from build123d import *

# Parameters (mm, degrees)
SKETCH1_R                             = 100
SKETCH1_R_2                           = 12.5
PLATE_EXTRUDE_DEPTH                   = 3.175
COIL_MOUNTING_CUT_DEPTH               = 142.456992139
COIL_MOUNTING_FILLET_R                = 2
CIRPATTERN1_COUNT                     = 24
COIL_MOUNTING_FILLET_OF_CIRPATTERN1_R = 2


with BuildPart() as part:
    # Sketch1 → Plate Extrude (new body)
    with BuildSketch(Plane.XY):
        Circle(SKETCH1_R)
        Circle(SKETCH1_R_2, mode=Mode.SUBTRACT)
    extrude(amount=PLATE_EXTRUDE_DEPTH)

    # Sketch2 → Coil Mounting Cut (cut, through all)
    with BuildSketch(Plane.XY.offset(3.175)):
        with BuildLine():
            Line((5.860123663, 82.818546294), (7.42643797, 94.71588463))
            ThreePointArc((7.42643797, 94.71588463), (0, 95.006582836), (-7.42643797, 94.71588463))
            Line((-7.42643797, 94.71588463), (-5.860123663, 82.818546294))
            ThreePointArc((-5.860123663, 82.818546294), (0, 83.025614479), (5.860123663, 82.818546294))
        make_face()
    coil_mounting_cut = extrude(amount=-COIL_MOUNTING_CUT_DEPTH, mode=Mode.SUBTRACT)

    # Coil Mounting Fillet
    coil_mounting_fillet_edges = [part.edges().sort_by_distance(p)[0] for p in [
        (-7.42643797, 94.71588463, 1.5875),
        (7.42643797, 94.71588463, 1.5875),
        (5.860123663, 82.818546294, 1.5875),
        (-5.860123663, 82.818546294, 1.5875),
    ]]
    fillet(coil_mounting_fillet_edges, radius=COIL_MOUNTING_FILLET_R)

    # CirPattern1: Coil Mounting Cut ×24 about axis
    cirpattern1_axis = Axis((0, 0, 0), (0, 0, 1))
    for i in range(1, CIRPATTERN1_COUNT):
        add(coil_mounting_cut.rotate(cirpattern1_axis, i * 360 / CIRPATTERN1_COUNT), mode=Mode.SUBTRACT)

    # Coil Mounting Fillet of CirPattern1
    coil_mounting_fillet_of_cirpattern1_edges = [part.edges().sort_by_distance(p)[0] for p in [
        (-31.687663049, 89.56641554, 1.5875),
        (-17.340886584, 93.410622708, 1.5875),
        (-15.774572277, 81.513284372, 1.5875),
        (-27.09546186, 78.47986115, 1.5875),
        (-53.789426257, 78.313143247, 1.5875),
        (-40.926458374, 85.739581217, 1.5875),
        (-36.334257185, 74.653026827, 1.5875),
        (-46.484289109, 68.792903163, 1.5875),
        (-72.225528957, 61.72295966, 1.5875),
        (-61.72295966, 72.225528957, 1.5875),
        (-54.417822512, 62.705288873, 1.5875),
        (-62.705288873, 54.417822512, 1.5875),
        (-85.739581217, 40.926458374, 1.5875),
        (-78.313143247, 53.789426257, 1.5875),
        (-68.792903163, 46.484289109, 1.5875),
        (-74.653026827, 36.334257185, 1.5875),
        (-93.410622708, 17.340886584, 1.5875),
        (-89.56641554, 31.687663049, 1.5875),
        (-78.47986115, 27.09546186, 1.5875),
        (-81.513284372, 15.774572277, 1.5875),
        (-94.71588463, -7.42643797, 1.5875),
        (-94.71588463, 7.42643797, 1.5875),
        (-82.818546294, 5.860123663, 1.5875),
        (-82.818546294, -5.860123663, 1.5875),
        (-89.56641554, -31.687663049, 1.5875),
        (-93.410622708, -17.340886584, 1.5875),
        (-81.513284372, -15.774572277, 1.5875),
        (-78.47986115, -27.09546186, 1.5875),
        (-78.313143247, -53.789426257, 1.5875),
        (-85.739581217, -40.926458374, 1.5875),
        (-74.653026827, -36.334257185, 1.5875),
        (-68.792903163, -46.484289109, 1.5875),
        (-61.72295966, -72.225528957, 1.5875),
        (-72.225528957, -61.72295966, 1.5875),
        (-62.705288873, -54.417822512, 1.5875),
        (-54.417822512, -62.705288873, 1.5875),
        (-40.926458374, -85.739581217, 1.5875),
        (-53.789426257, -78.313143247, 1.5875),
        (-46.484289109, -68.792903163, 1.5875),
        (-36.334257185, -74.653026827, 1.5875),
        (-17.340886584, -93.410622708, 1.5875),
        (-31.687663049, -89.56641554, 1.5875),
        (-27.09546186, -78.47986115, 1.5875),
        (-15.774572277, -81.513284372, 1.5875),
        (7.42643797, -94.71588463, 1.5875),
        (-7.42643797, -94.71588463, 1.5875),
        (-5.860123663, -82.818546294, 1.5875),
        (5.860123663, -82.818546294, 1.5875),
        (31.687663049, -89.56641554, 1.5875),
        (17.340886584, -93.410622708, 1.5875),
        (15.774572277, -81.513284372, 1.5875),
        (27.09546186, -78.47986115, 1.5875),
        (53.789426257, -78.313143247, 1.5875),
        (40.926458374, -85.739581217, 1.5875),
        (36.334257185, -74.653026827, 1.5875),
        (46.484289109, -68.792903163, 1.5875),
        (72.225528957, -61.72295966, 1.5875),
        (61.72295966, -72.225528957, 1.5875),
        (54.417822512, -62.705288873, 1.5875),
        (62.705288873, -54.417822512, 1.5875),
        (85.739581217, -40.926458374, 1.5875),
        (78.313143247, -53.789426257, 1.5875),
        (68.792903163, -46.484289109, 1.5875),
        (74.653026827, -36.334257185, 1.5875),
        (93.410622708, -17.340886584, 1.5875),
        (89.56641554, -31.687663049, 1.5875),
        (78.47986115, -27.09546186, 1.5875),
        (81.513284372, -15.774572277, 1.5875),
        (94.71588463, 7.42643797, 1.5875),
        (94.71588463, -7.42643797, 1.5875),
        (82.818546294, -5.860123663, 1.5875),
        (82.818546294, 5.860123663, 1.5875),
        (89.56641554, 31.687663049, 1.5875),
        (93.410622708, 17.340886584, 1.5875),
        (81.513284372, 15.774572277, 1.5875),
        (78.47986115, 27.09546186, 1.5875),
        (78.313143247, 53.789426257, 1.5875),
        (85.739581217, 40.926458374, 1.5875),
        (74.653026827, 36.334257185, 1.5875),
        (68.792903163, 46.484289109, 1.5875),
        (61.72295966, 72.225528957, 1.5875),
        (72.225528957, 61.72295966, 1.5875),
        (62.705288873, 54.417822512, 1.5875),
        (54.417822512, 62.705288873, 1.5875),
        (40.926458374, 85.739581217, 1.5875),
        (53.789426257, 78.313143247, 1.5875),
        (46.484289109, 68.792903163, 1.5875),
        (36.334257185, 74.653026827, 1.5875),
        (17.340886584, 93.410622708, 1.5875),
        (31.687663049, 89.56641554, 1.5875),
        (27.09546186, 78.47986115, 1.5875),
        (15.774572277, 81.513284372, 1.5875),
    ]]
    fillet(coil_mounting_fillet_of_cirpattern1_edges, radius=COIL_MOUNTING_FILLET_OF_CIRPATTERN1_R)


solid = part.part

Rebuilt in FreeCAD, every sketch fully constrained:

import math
import FreeCAD as App
import Part
import Sketcher

V = App.Vector
Q = App.Units.Quantity


def edges_at(feature, points):
    """Names of the edges that pass closest to the given points."""
    edges = feature.Shape.Edges
    near = lambda p: min(range(len(edges)), key=lambda i: edges[i].distToShape(Part.Vertex(*p))[0])
    return sorted({f"Edge{near(p) + 1}" for p in points})

doc = App.newDocument("Part")
body = doc.addObject("PartDesign::Body", "Body")

# Sketch on XY plane
sketch1 = body.newObject("Sketcher::SketchObject", "Sketch")
sketch1.AttachmentSupport = (doc.getObject("XY_Plane"), [""])
sketch1.MapMode = "FlatFace"
sketch1.addGeometry(Part.Circle(V(0, 0, 0), V(0, 0, 1), 100), False)
sketch1.addGeometry(Part.Circle(V(0, 0, 0), V(0, 0, 1), 12.5), False)
sketch1.addConstraint(Sketcher.Constraint("Coincident", 0, 3, -1, 1))
sketch1.addConstraint(Sketcher.Constraint("Coincident", 1, 3, -1, 1))
sketch1.addConstraint(Sketcher.Constraint("Diameter", 0, Q("200 mm")))
sketch1.addConstraint(Sketcher.Constraint("Diameter", 1, Q("25 mm")))
pad1 = body.newObject("PartDesign::Pad", "Pad")
pad1.Profile = sketch1
pad1.Length = 3.175

# Sketch on XY plane
sketch2 = body.newObject("Sketcher::SketchObject", "Sketch001")
sketch2.AttachmentSupport = (doc.getObject("XY_Plane"), [""])
sketch2.MapMode = "FlatFace"
sketch2.AttachmentOffset = App.Placement(V(0, 0, 3.175), App.Rotation())
sketch2.addGeometry(Part.LineSegment(V(5.860124, 82.818546, 0), V(7.426438, 94.715885, 0)), False)
sketch2.addGeometry(Part.ArcOfCircle(Part.Circle(V(0, 0, 0), V(0, 0, 1), 95.006583), math.radians(85.516752), math.radians(94.483248)), False)
sketch2.addGeometry(Part.LineSegment(V(-7.426438, 94.715885, 0), V(-5.860124, 82.818546, 0)), False)
sketch2.addGeometry(Part.ArcOfCircle(Part.Circle(V(0, 0, 0), V(0, 0, 1), 83.025614), math.radians(85.952577), math.radians(94.047423)), False)
sketch2.addConstraint(Sketcher.Constraint("Coincident", 0, 2, 1, 1))
sketch2.addConstraint(Sketcher.Constraint("Coincident", 1, 2, 2, 1))
sketch2.addConstraint(Sketcher.Constraint("Coincident", 2, 2, 3, 2))
sketch2.addConstraint(Sketcher.Constraint("Coincident", 3, 1, 0, 1))
sketch2.addConstraint(Sketcher.Constraint("Coincident", 1, 3, -1, 1))
sketch2.addConstraint(Sketcher.Constraint("Coincident", 3, 3, -1, 1))
sketch2.addConstraint(Sketcher.Constraint("Distance", 0, Q("12 mm")))
sketch2.addConstraint(Sketcher.Constraint("Distance", 2, Q("12 mm")))
sketch2.addConstraint(Sketcher.Constraint("Radius", 1, Q("95.006583 mm")))
sketch2.addConstraint(Sketcher.Constraint("Radius", 3, Q("83.025614 mm")))
sketch2.addConstraint(Sketcher.Constraint("DistanceX", 2, 2, 0, 2, Q("13.286562 mm")))
sketch2.addConstraint(Sketcher.Constraint("DistanceY", 2, 2, 0, 2, Q("11.897338 mm")))
pocket1 = body.newObject("PartDesign::Pocket", "Pocket")
pocket1.Profile = sketch2
pocket1.Type = "ThroughAll"
doc.recompute()

fillet = body.newObject("PartDesign::Fillet", "Fillet")
fillet.Base = (pocket1, edges_at(pocket1, [
    (-7.426, 94.716, 1.587),
    (7.426, 94.716, 1.587),
    (5.86, 82.819, 1.587),
    (-5.86, 82.819, 1.587),
]))
fillet.Radius = 2
doc.recompute()

polarpattern = body.newObject("PartDesign::PolarPattern", "PolarPattern")
polarpattern.Originals = [pocket1]
polarpattern.Axis = (doc.getObject("Z_Axis"), [""])
polarpattern.Angle = 360
polarpattern.Occurrences = 24
body.Tip = polarpattern
doc.recompute()

fillet2 = body.newObject("PartDesign::Fillet", "Fillet001")
fillet2.Base = (polarpattern, edges_at(polarpattern, [
    (-31.688, 89.566, 1.587),
    (-17.341, 93.411, 1.587),
    (-15.775, 81.513, 1.587),
    (-27.095, 78.48, 1.587),
    (-53.789, 78.313, 1.587),
    (-40.926, 85.74, 1.587),
    (-36.334, 74.653, 1.587),
    (-46.484, 68.793, 1.587),
    (-72.226, 61.723, 1.587),
    (-61.723, 72.226, 1.587),
    (-54.418, 62.705, 1.587),
    (-62.705, 54.418, 1.587),
    (-85.74, 40.926, 1.587),
    (-78.313, 53.789, 1.587),
    (-68.793, 46.484, 1.587),
    (-74.653, 36.334, 1.587),
    (-93.411, 17.341, 1.587),
    (-89.566, 31.688, 1.587),
    (-78.48, 27.095, 1.587),
    (-81.513, 15.775, 1.587),
    (-94.716, -7.426, 1.587),
    (-94.716, 7.426, 1.587),
    (-82.819, 5.86, 1.587),
    (-82.819, -5.86, 1.587),
    (-89.566, -31.688, 1.587),
    (-93.411, -17.341, 1.587),
    (-81.513, -15.775, 1.587),
    (-78.48, -27.095, 1.587),
    (-78.313, -53.789, 1.587),
    (-85.74, -40.926, 1.587),
    (-74.653, -36.334, 1.587),
    (-68.793, -46.484, 1.587),
    (-61.723, -72.226, 1.587),
    (-72.226, -61.723, 1.587),
    (-62.705, -54.418, 1.587),
    (-54.418, -62.705, 1.587),
    (-40.926, -85.74, 1.587),
    (-53.789, -78.313, 1.587),
    (-46.484, -68.793, 1.587),
    (-36.334, -74.653, 1.587),
    (-17.341, -93.411, 1.587),
    (-31.688, -89.566, 1.587),
    (-27.095, -78.48, 1.587),
    (-15.775, -81.513, 1.587),
    (7.426, -94.716, 1.587),
    (-7.426, -94.716, 1.587),
    (-5.86, -82.819, 1.587),
    (5.86, -82.819, 1.587),
    (31.688, -89.566, 1.587),
    (17.341, -93.411, 1.587),
    (15.775, -81.513, 1.587),
    (27.095, -78.48, 1.587),
    (53.789, -78.313, 1.587),
    (40.926, -85.74, 1.587),
    (36.334, -74.653, 1.587),
    (46.484, -68.793, 1.587),
    (72.226, -61.723, 1.587),
    (61.723, -72.226, 1.587),
    (54.418, -62.705, 1.587),
    (62.705, -54.418, 1.587),
    (85.74, -40.926, 1.587),
    (78.313, -53.789, 1.587),
    (68.793, -46.484, 1.587),
    (74.653, -36.334, 1.587),
    (93.411, -17.341, 1.587),
    (89.566, -31.688, 1.587),
    (78.48, -27.095, 1.587),
    (81.513, -15.775, 1.587),
    (94.716, 7.426, 1.587),
    (94.716, -7.426, 1.587),
    (82.819, -5.86, 1.587),
    (82.819, 5.86, 1.587),
    (89.566, 31.688, 1.587),
    (93.411, 17.341, 1.587),
    (81.513, 15.775, 1.587),
    (78.48, 27.095, 1.587),
    (78.313, 53.789, 1.587),
    (85.74, 40.926, 1.587),
    (74.653, 36.334, 1.587),
    (68.793, 46.484, 1.587),
    (61.723, 72.226, 1.587),
    (72.226, 61.723, 1.587),
    (62.705, 54.418, 1.587),
    (54.418, 62.705, 1.587),
    (40.926, 85.74, 1.587),
    (53.789, 78.313, 1.587),
    (46.484, 68.793, 1.587),
    (36.334, 74.653, 1.587),
    (17.341, 93.411, 1.587),
    (31.688, 89.566, 1.587),
    (27.095, 78.48, 1.587),
    (15.775, 81.513, 1.587),
]))
fillet2.Radius = 2

doc.recompute()
